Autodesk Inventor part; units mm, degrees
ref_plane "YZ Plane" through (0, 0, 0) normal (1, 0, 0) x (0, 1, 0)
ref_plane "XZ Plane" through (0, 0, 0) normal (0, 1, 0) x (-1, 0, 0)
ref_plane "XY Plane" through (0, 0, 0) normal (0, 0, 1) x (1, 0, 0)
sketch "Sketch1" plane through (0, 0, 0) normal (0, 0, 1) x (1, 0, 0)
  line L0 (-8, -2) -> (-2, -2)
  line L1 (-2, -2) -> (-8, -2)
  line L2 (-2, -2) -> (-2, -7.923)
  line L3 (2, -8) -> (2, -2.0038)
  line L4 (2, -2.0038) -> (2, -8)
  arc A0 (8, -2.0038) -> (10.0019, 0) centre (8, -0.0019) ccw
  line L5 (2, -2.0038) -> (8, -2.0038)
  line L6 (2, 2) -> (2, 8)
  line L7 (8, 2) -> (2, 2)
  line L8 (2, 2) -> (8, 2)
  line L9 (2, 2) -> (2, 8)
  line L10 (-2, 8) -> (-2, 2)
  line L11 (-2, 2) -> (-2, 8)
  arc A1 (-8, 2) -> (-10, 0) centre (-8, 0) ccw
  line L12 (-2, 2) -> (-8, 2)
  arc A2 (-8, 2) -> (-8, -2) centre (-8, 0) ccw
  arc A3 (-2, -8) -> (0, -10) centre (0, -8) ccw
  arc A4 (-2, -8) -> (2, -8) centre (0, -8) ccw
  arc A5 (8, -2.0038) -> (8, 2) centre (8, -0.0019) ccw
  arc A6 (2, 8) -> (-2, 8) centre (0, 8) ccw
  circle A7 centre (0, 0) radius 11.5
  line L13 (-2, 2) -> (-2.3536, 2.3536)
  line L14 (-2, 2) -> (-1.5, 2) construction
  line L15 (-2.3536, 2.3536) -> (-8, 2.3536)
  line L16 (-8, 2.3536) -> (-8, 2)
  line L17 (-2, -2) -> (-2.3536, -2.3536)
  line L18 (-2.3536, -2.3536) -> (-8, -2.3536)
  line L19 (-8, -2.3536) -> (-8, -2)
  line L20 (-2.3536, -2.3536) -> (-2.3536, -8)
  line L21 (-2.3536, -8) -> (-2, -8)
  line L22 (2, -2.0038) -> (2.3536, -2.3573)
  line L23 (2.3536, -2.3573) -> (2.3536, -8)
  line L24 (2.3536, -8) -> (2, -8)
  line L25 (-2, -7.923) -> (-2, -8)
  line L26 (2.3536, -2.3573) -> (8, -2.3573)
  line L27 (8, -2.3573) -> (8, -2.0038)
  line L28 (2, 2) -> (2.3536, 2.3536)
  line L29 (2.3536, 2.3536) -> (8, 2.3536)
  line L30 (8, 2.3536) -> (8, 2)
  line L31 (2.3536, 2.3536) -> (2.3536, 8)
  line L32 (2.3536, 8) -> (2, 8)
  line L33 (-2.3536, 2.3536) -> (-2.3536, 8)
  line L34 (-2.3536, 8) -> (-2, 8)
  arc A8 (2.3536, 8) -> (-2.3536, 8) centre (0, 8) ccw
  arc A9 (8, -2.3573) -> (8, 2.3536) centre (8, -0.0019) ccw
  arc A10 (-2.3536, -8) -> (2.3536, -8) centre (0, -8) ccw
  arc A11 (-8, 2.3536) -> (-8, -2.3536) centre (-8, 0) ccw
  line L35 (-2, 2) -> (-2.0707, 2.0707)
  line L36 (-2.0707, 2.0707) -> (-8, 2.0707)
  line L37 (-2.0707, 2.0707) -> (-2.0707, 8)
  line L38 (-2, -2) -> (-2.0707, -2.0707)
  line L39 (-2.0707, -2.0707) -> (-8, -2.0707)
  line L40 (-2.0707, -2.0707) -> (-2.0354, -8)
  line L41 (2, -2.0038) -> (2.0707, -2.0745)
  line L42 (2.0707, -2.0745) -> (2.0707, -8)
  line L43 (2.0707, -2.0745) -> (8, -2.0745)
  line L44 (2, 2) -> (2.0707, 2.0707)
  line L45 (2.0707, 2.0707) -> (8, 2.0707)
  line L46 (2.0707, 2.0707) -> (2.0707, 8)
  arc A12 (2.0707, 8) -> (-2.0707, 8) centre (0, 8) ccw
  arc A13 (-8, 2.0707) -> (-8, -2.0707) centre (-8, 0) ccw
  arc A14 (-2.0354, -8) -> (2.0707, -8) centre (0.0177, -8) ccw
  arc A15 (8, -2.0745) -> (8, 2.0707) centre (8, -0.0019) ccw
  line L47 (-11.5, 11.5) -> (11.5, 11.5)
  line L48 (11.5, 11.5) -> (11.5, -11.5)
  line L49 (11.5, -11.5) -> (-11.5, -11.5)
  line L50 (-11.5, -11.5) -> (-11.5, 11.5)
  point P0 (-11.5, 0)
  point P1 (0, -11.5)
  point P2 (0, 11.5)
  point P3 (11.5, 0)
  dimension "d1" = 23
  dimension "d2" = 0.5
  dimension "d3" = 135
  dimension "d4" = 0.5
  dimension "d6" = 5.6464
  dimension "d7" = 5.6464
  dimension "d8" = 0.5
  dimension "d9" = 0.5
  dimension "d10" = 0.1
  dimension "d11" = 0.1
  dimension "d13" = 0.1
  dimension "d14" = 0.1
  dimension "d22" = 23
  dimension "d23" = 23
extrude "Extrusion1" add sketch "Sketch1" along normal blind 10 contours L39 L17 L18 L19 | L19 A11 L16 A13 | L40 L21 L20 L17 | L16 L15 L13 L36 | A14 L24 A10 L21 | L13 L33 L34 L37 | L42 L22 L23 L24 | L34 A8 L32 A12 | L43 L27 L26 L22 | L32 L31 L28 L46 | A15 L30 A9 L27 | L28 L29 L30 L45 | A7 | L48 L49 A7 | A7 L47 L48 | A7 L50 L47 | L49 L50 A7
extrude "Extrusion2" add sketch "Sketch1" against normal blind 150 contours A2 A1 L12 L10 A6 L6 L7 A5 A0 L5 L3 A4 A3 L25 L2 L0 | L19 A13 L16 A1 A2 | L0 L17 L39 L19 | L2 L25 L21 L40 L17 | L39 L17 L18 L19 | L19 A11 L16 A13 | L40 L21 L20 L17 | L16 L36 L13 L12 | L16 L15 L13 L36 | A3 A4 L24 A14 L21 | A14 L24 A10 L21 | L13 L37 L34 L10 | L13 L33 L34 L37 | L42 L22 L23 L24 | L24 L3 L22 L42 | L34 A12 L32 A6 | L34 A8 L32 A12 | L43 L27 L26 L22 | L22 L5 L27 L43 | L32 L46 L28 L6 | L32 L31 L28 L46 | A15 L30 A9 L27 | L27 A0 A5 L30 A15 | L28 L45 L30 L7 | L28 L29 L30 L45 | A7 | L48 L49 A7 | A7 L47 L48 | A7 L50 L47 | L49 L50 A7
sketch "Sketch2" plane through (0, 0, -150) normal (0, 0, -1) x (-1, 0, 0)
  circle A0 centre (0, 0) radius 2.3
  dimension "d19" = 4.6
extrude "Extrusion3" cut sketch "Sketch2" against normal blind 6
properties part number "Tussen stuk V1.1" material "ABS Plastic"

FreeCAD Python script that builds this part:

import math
import FreeCAD as App
import Part
import Sketcher
from FreeCAD import Vector
Q = App.Units.Quantity

doc = App.newDocument("Part")
body = doc.addObject("PartDesign::Body", "Body")

# Sketch on XY plane
sketch1 = doc.addObject("Sketcher::SketchObject", "Sketch")
body.addObject(sketch1)
sketch1.AttachmentSupport = (doc.XY_Plane, [""])
sketch1.MapMode = "FlatFace"
sketch1.addGeometry([
    Part.LineSegment(Vector(11.5, -11.5, 0), Vector(11.5, 11.5, 0)),  # 0
    Part.LineSegment(Vector(11.5, 11.5, 0), Vector(-11.5, 11.5, 0)),  # 1
    Part.LineSegment(Vector(-11.5, 11.5, 0), Vector(-11.5, -11.5, 0)),  # 2
    Part.LineSegment(Vector(-11.5, -11.5, 0), Vector(11.5, -11.5, 0)),  # 3
    Part.LineSegment(Vector(-2.0707, -2.0707, 0), Vector(-8, -2.0707, 0)),  # 4
    Part.ArcOfCircle(Part.Circle(Vector(-8, 0, 0), Vector(0, 0, 1), 2.0707), math.radians(90), math.radians(270)),  # 5
    Part.LineSegment(Vector(-8, 2.0707, 0), Vector(-2.0707, 2.0707, 0)),  # 6
    Part.LineSegment(Vector(-2.0707, 2.0707, 0), Vector(-2.0707, 8, 0)),  # 7
    Part.ArcOfCircle(Part.Circle(Vector(0, 8, 0), Vector(0, 0, 1), 2.0707), math.radians(0), math.radians(180)),  # 8
    Part.LineSegment(Vector(2.0707, 8, 0), Vector(2.0707, 2.0707, 0)),  # 9
    Part.LineSegment(Vector(2.0707, 2.0707, 0), Vector(8, 2.0707, 0)),  # 10
    Part.ArcOfCircle(Part.Circle(Vector(8, -0.0019, 0), Vector(0, 0, 1), 2.0726), math.radians(-90), math.radians(90)),  # 11
    Part.LineSegment(Vector(8, -2.0745, 0), Vector(2.0707, -2.0745, 0)),  # 12
    Part.LineSegment(Vector(2.0707, -2.0745, 0), Vector(2.0707, -8, 0)),  # 13
    Part.ArcOfCircle(Part.Circle(Vector(0.0177, -8, 0), Vector(0, 0, 1), 2.0531), math.radians(180), math.radians(360)),  # 14
    Part.LineSegment(Vector(-2.0354, -8, 0), Vector(-2.0707, -2.0707, 0)),  # 15
], False)
sketch1.addConstraint([
    Sketcher.Constraint("Coincident", 0, 2, 1, 1),
    Sketcher.Constraint("Coincident", 1, 2, 2, 1),
    Sketcher.Constraint("Coincident", 2, 2, 3, 1),
    Sketcher.Constraint("Coincident", 3, 2, 0, 1),
    Sketcher.Constraint("Tangent", 4, 2, 5, 2),
    Sketcher.Constraint("Tangent", 5, 1, 6, 1),
    Sketcher.Constraint("Coincident", 6, 2, 7, 1),
    Sketcher.Constraint("Tangent", 7, 2, 8, 2),
    Sketcher.Constraint("Tangent", 8, 1, 9, 1),
    Sketcher.Constraint("Coincident", 9, 2, 10, 1),
    Sketcher.Constraint("Tangent", 10, 2, 11, 2),
    Sketcher.Constraint("Tangent", 11, 1, 12, 1),
    Sketcher.Constraint("Coincident", 12, 2, 13, 1),
    Sketcher.Constraint("Tangent", 13, 2, 14, 2),
    Sketcher.Constraint("Coincident", 14, 1, 15, 1),
    Sketcher.Constraint("Coincident", 15, 2, 4, 1),
    Sketcher.Constraint("Vertical", 0),
    Sketcher.Constraint("Horizontal", 1),
    Sketcher.Constraint("Vertical", 2),
    Sketcher.Constraint("Horizontal", 3),
    Sketcher.Constraint("Horizontal", 4),
    Sketcher.Constraint("Horizontal", 6),
    Sketcher.Constraint("Vertical", 7),
    Sketcher.Constraint("Vertical", 9),
    Sketcher.Constraint("Horizontal", 10),
    Sketcher.Constraint("Horizontal", 12),
    Sketcher.Constraint("Vertical", 13),
    Sketcher.Constraint("Equal", 5, 8),
    Sketcher.Constraint("Symmetric", 0, 2, 2, 2, -1, 1),
    Sketcher.Constraint("Symmetric", 4, 2, 10, 2, -1, 1),
    Sketcher.Constraint("Symmetric", 7, 2, 13, 2, -1, 1),
    Sketcher.Constraint("Symmetric", 6, 2, 9, 2, -2),
    Sketcher.Constraint("Horizontal", 13, 2, 14, 1),
    Sketcher.Constraint("Vertical", 7, 2, 15, 2),
    Sketcher.Constraint("Equal", 3, 0),
    Sketcher.Constraint("Equal", 12, 7),
    Sketcher.Constraint("DistanceX", 1, 2, 1, 1, 23.0),
    Sketcher.Constraint("DistanceX", 5, 3, -1, 1, 8.0),
    Sketcher.Constraint("Radius", 14, 2.053),
    Sketcher.Constraint("Angle", 15, Q("90.341 deg")),
    Sketcher.Constraint("Radius", 11, 2.0726),
])
pad1 = doc.addObject("PartDesign::Pad", "Pad")
body.addObject(pad1)
pad1.Profile = sketch1
pad1.Length = 10

# Sketch on XY plane
sketch2 = doc.addObject("Sketcher::SketchObject", "Sketch001")
body.addObject(sketch2)
sketch2.AttachmentSupport = (doc.XY_Plane, [""])
sketch2.MapMode = "FlatFace"
sketch2.addGeometry([
    Part.LineSegment(Vector(11.5, -11.5, 0), Vector(11.5, 11.5, 0)),
    Part.LineSegment(Vector(11.5, 11.5, 0), Vector(-11.5, 11.5, 0)),
    Part.LineSegment(Vector(-11.5, 11.5, 0), Vector(-11.5, -11.5, 0)),
    Part.LineSegment(Vector(-11.5, -11.5, 0), Vector(11.5, -11.5, 0)),
], False)
sketch2.addConstraint([
    Sketcher.Constraint("Coincident", 0, 2, 1, 1),
    Sketcher.Constraint("Coincident", 1, 2, 2, 1),
    Sketcher.Constraint("Coincident", 2, 2, 3, 1),
    Sketcher.Constraint("Coincident", 3, 2, 0, 1),
    Sketcher.Constraint("Vertical", 0),
    Sketcher.Constraint("Horizontal", 1),
    Sketcher.Constraint("Vertical", 2),
    Sketcher.Constraint("Horizontal", 3),
    Sketcher.Constraint("Symmetric", 0, 2, 2, 2, -1, 1),
    Sketcher.Constraint("Equal", 3, 0),
    Sketcher.Constraint("DistanceX", 1, 2, 1, 1, 23.0),
])
pad2 = doc.addObject("PartDesign::Pad", "Pad001")
body.addObject(pad2)
pad2.Profile = sketch2
pad2.Length = 150
pad2.Reversed = True

# Sketch on XY plane
sketch3 = doc.addObject("Sketcher::SketchObject", "Sketch002")
body.addObject(sketch3)
sketch3.AttachmentSupport = (doc.XY_Plane, [""])
sketch3.MapMode = "FlatFace"
sketch3.AttachmentOffset = App.Placement(Vector(0, 0, -150), App.Rotation())
sketch3.addGeometry(Part.Circle(Vector(0, 0, 0), Vector(0, 0, 1), 2.3), False)
sketch3.addConstraint([
    Sketcher.Constraint("Coincident", 0, 3, -1, 1),
    Sketcher.Constraint("Diameter", 0, 4.6),
])
pocket1 = doc.addObject("PartDesign::Pocket", "Pocket")
body.addObject(pocket1)
pocket1.Profile = sketch3
pocket1.Length = 6
pocket1.Reversed = True

doc.recompute()
